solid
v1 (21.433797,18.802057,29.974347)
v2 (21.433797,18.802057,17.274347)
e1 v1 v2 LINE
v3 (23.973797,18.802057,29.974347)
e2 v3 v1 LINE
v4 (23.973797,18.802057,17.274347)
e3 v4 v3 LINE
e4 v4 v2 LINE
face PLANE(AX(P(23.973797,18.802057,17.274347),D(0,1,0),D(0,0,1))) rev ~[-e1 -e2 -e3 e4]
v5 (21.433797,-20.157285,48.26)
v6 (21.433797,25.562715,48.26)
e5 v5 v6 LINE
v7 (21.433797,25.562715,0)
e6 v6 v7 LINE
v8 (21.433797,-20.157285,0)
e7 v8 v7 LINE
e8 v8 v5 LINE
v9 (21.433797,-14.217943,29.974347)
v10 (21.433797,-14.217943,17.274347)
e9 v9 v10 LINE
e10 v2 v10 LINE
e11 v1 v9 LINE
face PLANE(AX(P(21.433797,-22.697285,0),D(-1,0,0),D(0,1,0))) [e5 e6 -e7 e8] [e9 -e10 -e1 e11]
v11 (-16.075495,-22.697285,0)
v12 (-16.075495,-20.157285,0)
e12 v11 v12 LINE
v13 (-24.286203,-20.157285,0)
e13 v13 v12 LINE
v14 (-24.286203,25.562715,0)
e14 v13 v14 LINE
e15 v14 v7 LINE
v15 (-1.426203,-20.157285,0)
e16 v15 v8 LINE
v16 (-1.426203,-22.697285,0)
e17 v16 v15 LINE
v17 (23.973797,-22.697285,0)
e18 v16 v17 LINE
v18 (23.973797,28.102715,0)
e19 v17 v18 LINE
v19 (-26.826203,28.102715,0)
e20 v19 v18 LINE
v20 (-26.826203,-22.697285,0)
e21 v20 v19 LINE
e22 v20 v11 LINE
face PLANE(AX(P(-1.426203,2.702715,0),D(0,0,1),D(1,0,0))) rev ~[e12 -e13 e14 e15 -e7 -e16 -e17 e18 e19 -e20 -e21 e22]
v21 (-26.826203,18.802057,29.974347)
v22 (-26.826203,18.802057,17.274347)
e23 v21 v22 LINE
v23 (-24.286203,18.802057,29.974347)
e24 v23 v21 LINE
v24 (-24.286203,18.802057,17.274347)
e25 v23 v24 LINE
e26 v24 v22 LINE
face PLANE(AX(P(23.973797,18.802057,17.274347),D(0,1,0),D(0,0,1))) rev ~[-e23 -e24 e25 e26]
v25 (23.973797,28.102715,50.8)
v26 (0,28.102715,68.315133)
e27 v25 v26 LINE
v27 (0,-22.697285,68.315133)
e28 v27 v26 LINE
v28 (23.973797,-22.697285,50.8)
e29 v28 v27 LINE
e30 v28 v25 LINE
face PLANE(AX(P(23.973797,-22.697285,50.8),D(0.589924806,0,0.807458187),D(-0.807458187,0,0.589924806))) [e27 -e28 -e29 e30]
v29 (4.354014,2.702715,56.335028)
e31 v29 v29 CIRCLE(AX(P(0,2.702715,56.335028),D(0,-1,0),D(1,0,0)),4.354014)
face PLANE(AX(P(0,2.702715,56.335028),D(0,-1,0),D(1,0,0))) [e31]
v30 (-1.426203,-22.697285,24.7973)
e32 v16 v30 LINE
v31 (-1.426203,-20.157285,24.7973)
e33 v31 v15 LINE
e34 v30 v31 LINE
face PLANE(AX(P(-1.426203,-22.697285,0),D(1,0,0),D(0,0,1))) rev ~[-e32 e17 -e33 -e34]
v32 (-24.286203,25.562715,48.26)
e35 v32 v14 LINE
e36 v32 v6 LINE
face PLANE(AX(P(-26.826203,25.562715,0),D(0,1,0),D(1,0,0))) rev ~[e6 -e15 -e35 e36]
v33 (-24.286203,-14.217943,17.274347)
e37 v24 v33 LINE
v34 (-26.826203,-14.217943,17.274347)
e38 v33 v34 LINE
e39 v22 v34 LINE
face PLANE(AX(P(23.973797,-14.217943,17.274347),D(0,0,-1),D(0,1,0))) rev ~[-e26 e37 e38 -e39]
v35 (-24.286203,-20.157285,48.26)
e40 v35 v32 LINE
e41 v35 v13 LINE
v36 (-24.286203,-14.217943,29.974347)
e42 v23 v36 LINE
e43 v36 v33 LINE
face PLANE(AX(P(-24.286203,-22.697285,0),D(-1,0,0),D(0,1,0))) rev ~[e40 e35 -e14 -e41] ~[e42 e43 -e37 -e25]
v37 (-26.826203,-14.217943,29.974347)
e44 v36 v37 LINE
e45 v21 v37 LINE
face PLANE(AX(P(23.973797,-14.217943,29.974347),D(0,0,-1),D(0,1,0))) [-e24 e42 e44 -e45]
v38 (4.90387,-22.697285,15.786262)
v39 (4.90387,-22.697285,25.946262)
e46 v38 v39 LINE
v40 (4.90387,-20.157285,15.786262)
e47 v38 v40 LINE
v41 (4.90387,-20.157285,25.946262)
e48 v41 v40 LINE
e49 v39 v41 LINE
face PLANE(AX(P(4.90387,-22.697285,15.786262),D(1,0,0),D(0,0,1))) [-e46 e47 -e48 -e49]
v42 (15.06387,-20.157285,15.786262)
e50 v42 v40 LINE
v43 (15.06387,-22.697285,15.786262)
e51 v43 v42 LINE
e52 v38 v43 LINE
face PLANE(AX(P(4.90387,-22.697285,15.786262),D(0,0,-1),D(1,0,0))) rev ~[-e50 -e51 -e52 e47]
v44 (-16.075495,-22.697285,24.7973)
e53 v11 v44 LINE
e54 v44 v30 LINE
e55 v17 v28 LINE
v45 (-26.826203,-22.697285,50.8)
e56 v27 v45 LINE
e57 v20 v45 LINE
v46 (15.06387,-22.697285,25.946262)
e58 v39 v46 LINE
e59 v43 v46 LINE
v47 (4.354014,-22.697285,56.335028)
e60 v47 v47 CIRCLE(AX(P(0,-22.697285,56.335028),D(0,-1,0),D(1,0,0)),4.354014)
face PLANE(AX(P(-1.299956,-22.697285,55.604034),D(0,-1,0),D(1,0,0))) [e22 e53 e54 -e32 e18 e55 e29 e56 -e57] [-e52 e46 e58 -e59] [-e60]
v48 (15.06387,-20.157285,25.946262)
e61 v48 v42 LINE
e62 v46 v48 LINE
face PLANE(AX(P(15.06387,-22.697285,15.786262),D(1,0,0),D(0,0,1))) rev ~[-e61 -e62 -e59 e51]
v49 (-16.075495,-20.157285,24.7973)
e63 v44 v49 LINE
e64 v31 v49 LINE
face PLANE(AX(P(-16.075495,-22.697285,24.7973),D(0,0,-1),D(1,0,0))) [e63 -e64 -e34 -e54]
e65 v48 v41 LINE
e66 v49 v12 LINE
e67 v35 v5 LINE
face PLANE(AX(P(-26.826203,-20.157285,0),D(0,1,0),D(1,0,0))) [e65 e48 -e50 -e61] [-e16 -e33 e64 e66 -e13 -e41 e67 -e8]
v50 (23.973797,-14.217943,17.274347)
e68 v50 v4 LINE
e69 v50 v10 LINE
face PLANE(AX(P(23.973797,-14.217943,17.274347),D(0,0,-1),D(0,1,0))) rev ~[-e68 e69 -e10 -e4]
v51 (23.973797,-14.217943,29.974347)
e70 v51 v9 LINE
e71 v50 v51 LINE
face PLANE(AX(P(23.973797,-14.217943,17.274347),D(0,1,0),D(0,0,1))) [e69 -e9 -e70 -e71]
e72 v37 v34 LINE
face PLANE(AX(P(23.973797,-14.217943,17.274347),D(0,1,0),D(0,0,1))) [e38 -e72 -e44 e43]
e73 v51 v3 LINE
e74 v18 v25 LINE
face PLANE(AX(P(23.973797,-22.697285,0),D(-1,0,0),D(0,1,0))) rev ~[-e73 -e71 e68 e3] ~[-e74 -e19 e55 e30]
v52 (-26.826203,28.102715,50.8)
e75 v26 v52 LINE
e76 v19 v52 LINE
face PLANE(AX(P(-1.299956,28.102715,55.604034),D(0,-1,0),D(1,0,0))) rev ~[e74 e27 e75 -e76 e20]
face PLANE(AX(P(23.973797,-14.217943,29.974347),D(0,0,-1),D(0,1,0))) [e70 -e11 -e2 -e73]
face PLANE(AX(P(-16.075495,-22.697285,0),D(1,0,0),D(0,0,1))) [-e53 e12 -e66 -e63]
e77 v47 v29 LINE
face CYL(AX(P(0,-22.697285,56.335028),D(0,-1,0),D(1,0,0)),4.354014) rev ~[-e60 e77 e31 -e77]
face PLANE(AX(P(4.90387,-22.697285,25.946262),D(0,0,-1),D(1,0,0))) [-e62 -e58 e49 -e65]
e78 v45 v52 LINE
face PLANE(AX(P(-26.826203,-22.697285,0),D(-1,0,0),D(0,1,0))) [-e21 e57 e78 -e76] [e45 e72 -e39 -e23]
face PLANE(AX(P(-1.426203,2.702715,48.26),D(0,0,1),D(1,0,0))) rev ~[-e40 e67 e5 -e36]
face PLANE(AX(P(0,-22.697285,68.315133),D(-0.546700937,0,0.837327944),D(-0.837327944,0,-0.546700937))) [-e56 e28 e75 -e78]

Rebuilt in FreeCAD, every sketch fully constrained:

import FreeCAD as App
import Part
import Sketcher
Q = App.Units.Quantity


def faces_at(feature, points):
    """Names of the faces that lie closest to the given points."""
    faces = feature.Shape.Faces
    near = lambda p: min(range(len(faces)), key=lambda i: faces[i].distToShape(Part.Vertex(*p))[0])
    return sorted({f"Face{near(p) + 1}" for p in points})


def add_polygon(sketch, points):
    """Adds a closed chain of lines whose ends are joined by coincident constraints."""
    first, n = sketch.GeometryCount, len(points)
    for a, b in zip(points, points[1:] + points[:1]):
        sketch.addGeometry(Part.LineSegment(App.Vector(*a, 0), App.Vector(*b, 0)), False)
    for i in range(n):
        sketch.addConstraint(Sketcher.Constraint("Coincident", first + i, 2, first + (i + 1) % n, 1))

doc = App.newDocument("Part")
params = doc.addObject("Spreadsheet::Sheet", "Params")
for row, (alias, value) in enumerate([
    ("sketch1_width", "2 in"),
    ("pad1_length", "2 in"),
    ("thickness_wall", "0.1 in"),
    ("sketch2_width", "0.4 in"),
    ("pocket1_length", "0.88 in"),
    ("sketch3_width", "2 in"),
    ("pad2_length", "2 in"),
    ("sketch4_width", "1.3 in"),
    ("sketch4_height", "0.5 in"),
    ("pocket2_length", "3.34 in"),
    ("pocket3_length", "1 in"),
], start=1):
    params.set(f"A{row}", alias)
    params.set(f"B{row}", "=" + value)
    params.setAlias(f"B{row}", alias)

body = doc.addObject("PartDesign::Body", "Body")

# Sketch on XY plane
sketch1 = doc.addObject("Sketcher::SketchObject", "Sketch")
body.addObject(sketch1)
sketch1.AttachmentSupport = (doc.XY_Plane, [""])
sketch1.MapMode = "FlatFace"
add_polygon(sketch1, [(-26.826203, 28.102715), (-26.826203, -22.697285), (23.973797, -22.697285), (23.973797, 28.102715)])  # lines 0-3
sketch1.addConstraint([
    Sketcher.Constraint("Vertical", 0),
    Sketcher.Constraint("Horizontal", 1),
    Sketcher.Constraint("Vertical", 2),
    Sketcher.Constraint("Horizontal", 3),
    Sketcher.Constraint("Equal", 3, 0),
    Sketcher.Constraint("DistanceX", 1, 1, 1, 2, Q("2 in")),
    Sketcher.Constraint("DistanceX", 0, 2, -1, 1, Q("26.826203 mm")),
    Sketcher.Constraint("DistanceY", 0, 2, -1, 1, Q("22.697285 mm")),
])
sketch1.setExpression("Constraints[9]", "Params.sketch1_width")
pad1 = doc.addObject("PartDesign::Pad", "Pad")
body.addObject(pad1)
pad1.Profile = sketch1
pad1.setExpression("Length", "Params.pad1_length")
doc.recompute()

thickness = doc.addObject("PartDesign::Thickness", "Thickness")
body.addObject(thickness)
thickness.Base = (pad1, faces_at(pad1, [(-1.426, 2.703, 0)]))
thickness.setExpression("Value", "Params.thickness_wall")
thickness.Reversed = True
thickness.Join = "Arc"

# Sketch on XZ plane
sketch2 = doc.addObject("Sketcher::SketchObject", "Sketch001")
body.addObject(sketch2)
sketch2.AttachmentSupport = (doc.XZ_Plane, [""])
sketch2.MapMode = "FlatFace"
sketch2.AttachmentOffset = App.Placement(App.Vector(0, 0, 22.697285), App.Rotation())
add_polygon(sketch2, [(-16.075495, 24.7973), (-16.075495, 0), (-1.426203, 0), (-1.426203, 24.7973)])  # lines 0-3
add_polygon(sketch2, [(4.90387, 25.946262), (4.90387, 15.786262), (15.06387, 15.786262), (15.06387, 25.946262)])  # lines 4-7
sketch2.addConstraint([
    Sketcher.Constraint("Vertical", 0),
    Sketcher.Constraint("Horizontal", 1),
    Sketcher.Constraint("Vertical", 2),
    Sketcher.Constraint("Horizontal", 3),
    Sketcher.Constraint("Vertical", 4),
    Sketcher.Constraint("Horizontal", 5),
    Sketcher.Constraint("Vertical", 6),
    Sketcher.Constraint("Horizontal", 7),
    Sketcher.Constraint("PointOnObject", 0, 2, -1),
    Sketcher.Constraint("Equal", 7, 4),
    Sketcher.Constraint("DistanceX", 5, 1, 5, 2, Q("0.4 in")),
    Sketcher.Constraint("DistanceY", 0, 2, 0, 1, Q("24.7973 mm")),
    Sketcher.Constraint("DistanceX", 1, 1, 1, 2, Q("14.649291 mm")),
    Sketcher.Constraint("DistanceX", -1, 1, 4, 2, Q("4.90387 mm")),
    Sketcher.Constraint("DistanceX", 0, 2, -1, 1, Q("16.075495 mm")),
    Sketcher.Constraint("DistanceY", -1, 1, 4, 2, Q("15.786262 mm")),
])
sketch2.setExpression("Constraints[18]", "Params.sketch2_width")
pocket1 = doc.addObject("PartDesign::Pocket", "Pocket")
body.addObject(pocket1)
pocket1.Profile = sketch2
pocket1.setExpression("Length", "Params.pocket1_length")

# Sketch on XZ plane
sketch3 = doc.addObject("Sketcher::SketchObject", "Sketch002")
body.addObject(sketch3)
sketch3.AttachmentSupport = (doc.XZ_Plane, [""])
sketch3.MapMode = "FlatFace"
sketch3.AttachmentOffset = App.Placement(App.Vector(0, 0, 22.697285), App.Rotation())
add_polygon(sketch3, [(0, 68.315133), (-26.826203, 50.8), (23.973797, 50.8)])  # lines 0-2
sketch3.addConstraint([
    Sketcher.Constraint("Horizontal", 1),
    Sketcher.Constraint("PointOnObject", 2, 2, -2),
    Sketcher.Constraint("DistanceX", 1, 1, 1, 2, Q("2 in")),
    Sketcher.Constraint("DistanceY", -1, 1, 0, 2, Q("2 in")),
    Sketcher.Constraint("Distance", 0, Q("32.037869 mm")),
    Sketcher.Constraint("Distance", 2, Q("29.69045 mm")),
])
sketch3.setExpression("Constraints[5]", "Params.sketch3_width")
pad2 = doc.addObject("PartDesign::Pad", "Pad001")
body.addObject(pad2)
pad2.Profile = sketch3
pad2.setExpression("Length", "Params.pad2_length")
pad2.Reversed = True

# Sketch on YZ plane
sketch4 = doc.addObject("Sketcher::SketchObject", "Sketch003")
body.addObject(sketch4)
sketch4.AttachmentSupport = (doc.YZ_Plane, [""])
sketch4.MapMode = "FlatFace"
sketch4.AttachmentOffset = App.Placement(App.Vector(0, 0, 23.973797), App.Rotation())
add_polygon(sketch4, [(-14.217943, 29.974347), (-14.217943, 17.274347), (18.802057, 17.274347), (18.802057, 29.974347)])  # lines 0-3
sketch4.addConstraint([
    Sketcher.Constraint("Vertical", 0),
    Sketcher.Constraint("Horizontal", 1),
    Sketcher.Constraint("Vertical", 2),
    Sketcher.Constraint("Horizontal", 3),
    Sketcher.Constraint("DistanceX", 1, 1, 1, 2, Q("1.3 in")),
    Sketcher.Constraint("DistanceY", 0, 2, 0, 1, Q("0.5 in")),
    Sketcher.Constraint("DistanceX", 0, 2, -1, 1, Q("14.217943 mm")),
    Sketcher.Constraint("DistanceY", -1, 1, 0, 2, Q("17.274347 mm")),
])
sketch4.setExpression("Constraints[8]", "Params.sketch4_width")
sketch4.setExpression("Constraints[9]", "Params.sketch4_height")
pocket2 = doc.addObject("PartDesign::Pocket", "Pocket001")
body.addObject(pocket2)
pocket2.Profile = sketch4
pocket2.setExpression("Length", "Params.pocket2_length")

# Sketch on XZ plane
sketch5 = doc.addObject("Sketcher::SketchObject", "Sketch004")
body.addObject(sketch5)
sketch5.AttachmentSupport = (doc.XZ_Plane, [""])
sketch5.MapMode = "FlatFace"
sketch5.AttachmentOffset = App.Placement(App.Vector(0, 0, 22.697285), App.Rotation())
sketch5.addGeometry(Part.Circle(App.Vector(0, 56.335028, 0), App.Vector(0, 0, 1), 4.354014), False)
sketch5.addConstraint([
    Sketcher.Constraint("PointOnObject", 0, 3, -2),
    Sketcher.Constraint("Diameter", 0, Q("8.708028 mm")),
    Sketcher.Constraint("DistanceY", -1, 1, 0, 3, Q("56.335028 mm")),
])
pocket3 = doc.addObject("PartDesign::Pocket", "Pocket002")
body.addObject(pocket3)
pocket3.Profile = sketch5
pocket3.setExpression("Length", "Params.pocket3_length")

doc.recompute()
